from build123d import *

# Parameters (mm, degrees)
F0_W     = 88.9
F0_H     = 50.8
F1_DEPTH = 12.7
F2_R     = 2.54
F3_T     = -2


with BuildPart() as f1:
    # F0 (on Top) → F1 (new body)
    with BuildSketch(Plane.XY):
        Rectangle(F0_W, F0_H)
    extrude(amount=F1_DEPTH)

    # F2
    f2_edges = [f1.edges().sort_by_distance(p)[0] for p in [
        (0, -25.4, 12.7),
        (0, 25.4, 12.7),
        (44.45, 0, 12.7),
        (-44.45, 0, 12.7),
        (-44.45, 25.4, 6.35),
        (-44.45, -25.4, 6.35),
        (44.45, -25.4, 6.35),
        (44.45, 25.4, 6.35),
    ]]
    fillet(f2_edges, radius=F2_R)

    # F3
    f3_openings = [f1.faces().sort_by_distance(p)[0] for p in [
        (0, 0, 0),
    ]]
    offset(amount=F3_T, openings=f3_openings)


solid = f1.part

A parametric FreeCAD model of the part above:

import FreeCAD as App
import Part
import Sketcher
from FreeCAD import Vector
Q = App.Units.Quantity


def edges_at(feature, points):
    """Names of the edges that pass closest to the given points."""
    edges = feature.Shape.Edges
    near = lambda p: min(range(len(edges)), key=lambda i: edges[i].distToShape(Part.Vertex(*p))[0])
    return sorted({f"Edge{near(p) + 1}" for p in points})


def faces_at(feature, points):
    """Names of the faces that lie closest to the given points."""
    faces = feature.Shape.Faces
    near = lambda p: min(range(len(faces)), key=lambda i: faces[i].distToShape(Part.Vertex(*p))[0])
    return sorted({f"Face{near(p) + 1}" for p in points})


def add_polygon(sketch, points):
    """Adds a closed chain of lines whose ends are joined by coincident constraints."""
    first, n = sketch.GeometryCount, len(points)
    for a, b in zip(points, points[1:] + points[:1]):
        sketch.addGeometry(Part.LineSegment(App.Vector(*a, 0), App.Vector(*b, 0)), False)
    for i in range(n):
        sketch.addConstraint(Sketcher.Constraint("Coincident", first + i, 2, first + (i + 1) % n, 1))

doc = App.newDocument("Part")
body = doc.addObject("PartDesign::Body", "Body")

# Sketch on XY plane
sketch1 = doc.addObject("Sketcher::SketchObject", "Sketch")
body.addObject(sketch1)
sketch1.AttachmentSupport = (doc.XY_Plane, [""])
sketch1.MapMode = "FlatFace"
add_polygon(sketch1, [(-44.45, 25.4), (-44.45, -25.4), (44.45, -25.4), (44.45, 25.4)])  # lines 0-3
sketch1.addConstraint(Sketcher.Constraint("Vertical", 0))
sketch1.addConstraint(Sketcher.Constraint("Horizontal", 1))
sketch1.addConstraint(Sketcher.Constraint("Vertical", 2))
sketch1.addConstraint(Sketcher.Constraint("Horizontal", 3))
sketch1.addConstraint(Sketcher.Constraint("Symmetric", 0, 2, 2, 2, -1, 1))
sketch1.addConstraint(Sketcher.Constraint("DistanceY", 0, 2, 0, 1, Q("2 in")))
sketch1.addConstraint(Sketcher.Constraint("DistanceX", 1, 1, 1, 2, Q("3.5 in")))
pad1 = doc.addObject("PartDesign::Pad", "Pad")
body.addObject(pad1)
pad1.Profile = sketch1
pad1.Length = Q("0.5 in")
doc.recompute()

fillet = doc.addObject("PartDesign::Fillet", "Fillet")
body.addObject(fillet)
fillet.Base = (pad1, edges_at(pad1, [
    (0, -25.4, 12.7),
    (0, 25.4, 12.7),
    (44.45, 0, 12.7),
    (-44.45, 0, 12.7),
    (-44.45, 25.4, 6.35),
    (-44.45, -25.4, 6.35),
    (44.45, -25.4, 6.35),
    (44.45, 25.4, 6.35),
]))
fillet.Radius = Q("0.1 in")
doc.recompute()

thickness = doc.addObject("PartDesign::Thickness", "Thickness")
body.addObject(thickness)
thickness.Base = (fillet, faces_at(fillet, [(0, 0, 0)]))
thickness.Value = 2
thickness.Reversed = True
thickness.Join = "Arc"

doc.recompute()
